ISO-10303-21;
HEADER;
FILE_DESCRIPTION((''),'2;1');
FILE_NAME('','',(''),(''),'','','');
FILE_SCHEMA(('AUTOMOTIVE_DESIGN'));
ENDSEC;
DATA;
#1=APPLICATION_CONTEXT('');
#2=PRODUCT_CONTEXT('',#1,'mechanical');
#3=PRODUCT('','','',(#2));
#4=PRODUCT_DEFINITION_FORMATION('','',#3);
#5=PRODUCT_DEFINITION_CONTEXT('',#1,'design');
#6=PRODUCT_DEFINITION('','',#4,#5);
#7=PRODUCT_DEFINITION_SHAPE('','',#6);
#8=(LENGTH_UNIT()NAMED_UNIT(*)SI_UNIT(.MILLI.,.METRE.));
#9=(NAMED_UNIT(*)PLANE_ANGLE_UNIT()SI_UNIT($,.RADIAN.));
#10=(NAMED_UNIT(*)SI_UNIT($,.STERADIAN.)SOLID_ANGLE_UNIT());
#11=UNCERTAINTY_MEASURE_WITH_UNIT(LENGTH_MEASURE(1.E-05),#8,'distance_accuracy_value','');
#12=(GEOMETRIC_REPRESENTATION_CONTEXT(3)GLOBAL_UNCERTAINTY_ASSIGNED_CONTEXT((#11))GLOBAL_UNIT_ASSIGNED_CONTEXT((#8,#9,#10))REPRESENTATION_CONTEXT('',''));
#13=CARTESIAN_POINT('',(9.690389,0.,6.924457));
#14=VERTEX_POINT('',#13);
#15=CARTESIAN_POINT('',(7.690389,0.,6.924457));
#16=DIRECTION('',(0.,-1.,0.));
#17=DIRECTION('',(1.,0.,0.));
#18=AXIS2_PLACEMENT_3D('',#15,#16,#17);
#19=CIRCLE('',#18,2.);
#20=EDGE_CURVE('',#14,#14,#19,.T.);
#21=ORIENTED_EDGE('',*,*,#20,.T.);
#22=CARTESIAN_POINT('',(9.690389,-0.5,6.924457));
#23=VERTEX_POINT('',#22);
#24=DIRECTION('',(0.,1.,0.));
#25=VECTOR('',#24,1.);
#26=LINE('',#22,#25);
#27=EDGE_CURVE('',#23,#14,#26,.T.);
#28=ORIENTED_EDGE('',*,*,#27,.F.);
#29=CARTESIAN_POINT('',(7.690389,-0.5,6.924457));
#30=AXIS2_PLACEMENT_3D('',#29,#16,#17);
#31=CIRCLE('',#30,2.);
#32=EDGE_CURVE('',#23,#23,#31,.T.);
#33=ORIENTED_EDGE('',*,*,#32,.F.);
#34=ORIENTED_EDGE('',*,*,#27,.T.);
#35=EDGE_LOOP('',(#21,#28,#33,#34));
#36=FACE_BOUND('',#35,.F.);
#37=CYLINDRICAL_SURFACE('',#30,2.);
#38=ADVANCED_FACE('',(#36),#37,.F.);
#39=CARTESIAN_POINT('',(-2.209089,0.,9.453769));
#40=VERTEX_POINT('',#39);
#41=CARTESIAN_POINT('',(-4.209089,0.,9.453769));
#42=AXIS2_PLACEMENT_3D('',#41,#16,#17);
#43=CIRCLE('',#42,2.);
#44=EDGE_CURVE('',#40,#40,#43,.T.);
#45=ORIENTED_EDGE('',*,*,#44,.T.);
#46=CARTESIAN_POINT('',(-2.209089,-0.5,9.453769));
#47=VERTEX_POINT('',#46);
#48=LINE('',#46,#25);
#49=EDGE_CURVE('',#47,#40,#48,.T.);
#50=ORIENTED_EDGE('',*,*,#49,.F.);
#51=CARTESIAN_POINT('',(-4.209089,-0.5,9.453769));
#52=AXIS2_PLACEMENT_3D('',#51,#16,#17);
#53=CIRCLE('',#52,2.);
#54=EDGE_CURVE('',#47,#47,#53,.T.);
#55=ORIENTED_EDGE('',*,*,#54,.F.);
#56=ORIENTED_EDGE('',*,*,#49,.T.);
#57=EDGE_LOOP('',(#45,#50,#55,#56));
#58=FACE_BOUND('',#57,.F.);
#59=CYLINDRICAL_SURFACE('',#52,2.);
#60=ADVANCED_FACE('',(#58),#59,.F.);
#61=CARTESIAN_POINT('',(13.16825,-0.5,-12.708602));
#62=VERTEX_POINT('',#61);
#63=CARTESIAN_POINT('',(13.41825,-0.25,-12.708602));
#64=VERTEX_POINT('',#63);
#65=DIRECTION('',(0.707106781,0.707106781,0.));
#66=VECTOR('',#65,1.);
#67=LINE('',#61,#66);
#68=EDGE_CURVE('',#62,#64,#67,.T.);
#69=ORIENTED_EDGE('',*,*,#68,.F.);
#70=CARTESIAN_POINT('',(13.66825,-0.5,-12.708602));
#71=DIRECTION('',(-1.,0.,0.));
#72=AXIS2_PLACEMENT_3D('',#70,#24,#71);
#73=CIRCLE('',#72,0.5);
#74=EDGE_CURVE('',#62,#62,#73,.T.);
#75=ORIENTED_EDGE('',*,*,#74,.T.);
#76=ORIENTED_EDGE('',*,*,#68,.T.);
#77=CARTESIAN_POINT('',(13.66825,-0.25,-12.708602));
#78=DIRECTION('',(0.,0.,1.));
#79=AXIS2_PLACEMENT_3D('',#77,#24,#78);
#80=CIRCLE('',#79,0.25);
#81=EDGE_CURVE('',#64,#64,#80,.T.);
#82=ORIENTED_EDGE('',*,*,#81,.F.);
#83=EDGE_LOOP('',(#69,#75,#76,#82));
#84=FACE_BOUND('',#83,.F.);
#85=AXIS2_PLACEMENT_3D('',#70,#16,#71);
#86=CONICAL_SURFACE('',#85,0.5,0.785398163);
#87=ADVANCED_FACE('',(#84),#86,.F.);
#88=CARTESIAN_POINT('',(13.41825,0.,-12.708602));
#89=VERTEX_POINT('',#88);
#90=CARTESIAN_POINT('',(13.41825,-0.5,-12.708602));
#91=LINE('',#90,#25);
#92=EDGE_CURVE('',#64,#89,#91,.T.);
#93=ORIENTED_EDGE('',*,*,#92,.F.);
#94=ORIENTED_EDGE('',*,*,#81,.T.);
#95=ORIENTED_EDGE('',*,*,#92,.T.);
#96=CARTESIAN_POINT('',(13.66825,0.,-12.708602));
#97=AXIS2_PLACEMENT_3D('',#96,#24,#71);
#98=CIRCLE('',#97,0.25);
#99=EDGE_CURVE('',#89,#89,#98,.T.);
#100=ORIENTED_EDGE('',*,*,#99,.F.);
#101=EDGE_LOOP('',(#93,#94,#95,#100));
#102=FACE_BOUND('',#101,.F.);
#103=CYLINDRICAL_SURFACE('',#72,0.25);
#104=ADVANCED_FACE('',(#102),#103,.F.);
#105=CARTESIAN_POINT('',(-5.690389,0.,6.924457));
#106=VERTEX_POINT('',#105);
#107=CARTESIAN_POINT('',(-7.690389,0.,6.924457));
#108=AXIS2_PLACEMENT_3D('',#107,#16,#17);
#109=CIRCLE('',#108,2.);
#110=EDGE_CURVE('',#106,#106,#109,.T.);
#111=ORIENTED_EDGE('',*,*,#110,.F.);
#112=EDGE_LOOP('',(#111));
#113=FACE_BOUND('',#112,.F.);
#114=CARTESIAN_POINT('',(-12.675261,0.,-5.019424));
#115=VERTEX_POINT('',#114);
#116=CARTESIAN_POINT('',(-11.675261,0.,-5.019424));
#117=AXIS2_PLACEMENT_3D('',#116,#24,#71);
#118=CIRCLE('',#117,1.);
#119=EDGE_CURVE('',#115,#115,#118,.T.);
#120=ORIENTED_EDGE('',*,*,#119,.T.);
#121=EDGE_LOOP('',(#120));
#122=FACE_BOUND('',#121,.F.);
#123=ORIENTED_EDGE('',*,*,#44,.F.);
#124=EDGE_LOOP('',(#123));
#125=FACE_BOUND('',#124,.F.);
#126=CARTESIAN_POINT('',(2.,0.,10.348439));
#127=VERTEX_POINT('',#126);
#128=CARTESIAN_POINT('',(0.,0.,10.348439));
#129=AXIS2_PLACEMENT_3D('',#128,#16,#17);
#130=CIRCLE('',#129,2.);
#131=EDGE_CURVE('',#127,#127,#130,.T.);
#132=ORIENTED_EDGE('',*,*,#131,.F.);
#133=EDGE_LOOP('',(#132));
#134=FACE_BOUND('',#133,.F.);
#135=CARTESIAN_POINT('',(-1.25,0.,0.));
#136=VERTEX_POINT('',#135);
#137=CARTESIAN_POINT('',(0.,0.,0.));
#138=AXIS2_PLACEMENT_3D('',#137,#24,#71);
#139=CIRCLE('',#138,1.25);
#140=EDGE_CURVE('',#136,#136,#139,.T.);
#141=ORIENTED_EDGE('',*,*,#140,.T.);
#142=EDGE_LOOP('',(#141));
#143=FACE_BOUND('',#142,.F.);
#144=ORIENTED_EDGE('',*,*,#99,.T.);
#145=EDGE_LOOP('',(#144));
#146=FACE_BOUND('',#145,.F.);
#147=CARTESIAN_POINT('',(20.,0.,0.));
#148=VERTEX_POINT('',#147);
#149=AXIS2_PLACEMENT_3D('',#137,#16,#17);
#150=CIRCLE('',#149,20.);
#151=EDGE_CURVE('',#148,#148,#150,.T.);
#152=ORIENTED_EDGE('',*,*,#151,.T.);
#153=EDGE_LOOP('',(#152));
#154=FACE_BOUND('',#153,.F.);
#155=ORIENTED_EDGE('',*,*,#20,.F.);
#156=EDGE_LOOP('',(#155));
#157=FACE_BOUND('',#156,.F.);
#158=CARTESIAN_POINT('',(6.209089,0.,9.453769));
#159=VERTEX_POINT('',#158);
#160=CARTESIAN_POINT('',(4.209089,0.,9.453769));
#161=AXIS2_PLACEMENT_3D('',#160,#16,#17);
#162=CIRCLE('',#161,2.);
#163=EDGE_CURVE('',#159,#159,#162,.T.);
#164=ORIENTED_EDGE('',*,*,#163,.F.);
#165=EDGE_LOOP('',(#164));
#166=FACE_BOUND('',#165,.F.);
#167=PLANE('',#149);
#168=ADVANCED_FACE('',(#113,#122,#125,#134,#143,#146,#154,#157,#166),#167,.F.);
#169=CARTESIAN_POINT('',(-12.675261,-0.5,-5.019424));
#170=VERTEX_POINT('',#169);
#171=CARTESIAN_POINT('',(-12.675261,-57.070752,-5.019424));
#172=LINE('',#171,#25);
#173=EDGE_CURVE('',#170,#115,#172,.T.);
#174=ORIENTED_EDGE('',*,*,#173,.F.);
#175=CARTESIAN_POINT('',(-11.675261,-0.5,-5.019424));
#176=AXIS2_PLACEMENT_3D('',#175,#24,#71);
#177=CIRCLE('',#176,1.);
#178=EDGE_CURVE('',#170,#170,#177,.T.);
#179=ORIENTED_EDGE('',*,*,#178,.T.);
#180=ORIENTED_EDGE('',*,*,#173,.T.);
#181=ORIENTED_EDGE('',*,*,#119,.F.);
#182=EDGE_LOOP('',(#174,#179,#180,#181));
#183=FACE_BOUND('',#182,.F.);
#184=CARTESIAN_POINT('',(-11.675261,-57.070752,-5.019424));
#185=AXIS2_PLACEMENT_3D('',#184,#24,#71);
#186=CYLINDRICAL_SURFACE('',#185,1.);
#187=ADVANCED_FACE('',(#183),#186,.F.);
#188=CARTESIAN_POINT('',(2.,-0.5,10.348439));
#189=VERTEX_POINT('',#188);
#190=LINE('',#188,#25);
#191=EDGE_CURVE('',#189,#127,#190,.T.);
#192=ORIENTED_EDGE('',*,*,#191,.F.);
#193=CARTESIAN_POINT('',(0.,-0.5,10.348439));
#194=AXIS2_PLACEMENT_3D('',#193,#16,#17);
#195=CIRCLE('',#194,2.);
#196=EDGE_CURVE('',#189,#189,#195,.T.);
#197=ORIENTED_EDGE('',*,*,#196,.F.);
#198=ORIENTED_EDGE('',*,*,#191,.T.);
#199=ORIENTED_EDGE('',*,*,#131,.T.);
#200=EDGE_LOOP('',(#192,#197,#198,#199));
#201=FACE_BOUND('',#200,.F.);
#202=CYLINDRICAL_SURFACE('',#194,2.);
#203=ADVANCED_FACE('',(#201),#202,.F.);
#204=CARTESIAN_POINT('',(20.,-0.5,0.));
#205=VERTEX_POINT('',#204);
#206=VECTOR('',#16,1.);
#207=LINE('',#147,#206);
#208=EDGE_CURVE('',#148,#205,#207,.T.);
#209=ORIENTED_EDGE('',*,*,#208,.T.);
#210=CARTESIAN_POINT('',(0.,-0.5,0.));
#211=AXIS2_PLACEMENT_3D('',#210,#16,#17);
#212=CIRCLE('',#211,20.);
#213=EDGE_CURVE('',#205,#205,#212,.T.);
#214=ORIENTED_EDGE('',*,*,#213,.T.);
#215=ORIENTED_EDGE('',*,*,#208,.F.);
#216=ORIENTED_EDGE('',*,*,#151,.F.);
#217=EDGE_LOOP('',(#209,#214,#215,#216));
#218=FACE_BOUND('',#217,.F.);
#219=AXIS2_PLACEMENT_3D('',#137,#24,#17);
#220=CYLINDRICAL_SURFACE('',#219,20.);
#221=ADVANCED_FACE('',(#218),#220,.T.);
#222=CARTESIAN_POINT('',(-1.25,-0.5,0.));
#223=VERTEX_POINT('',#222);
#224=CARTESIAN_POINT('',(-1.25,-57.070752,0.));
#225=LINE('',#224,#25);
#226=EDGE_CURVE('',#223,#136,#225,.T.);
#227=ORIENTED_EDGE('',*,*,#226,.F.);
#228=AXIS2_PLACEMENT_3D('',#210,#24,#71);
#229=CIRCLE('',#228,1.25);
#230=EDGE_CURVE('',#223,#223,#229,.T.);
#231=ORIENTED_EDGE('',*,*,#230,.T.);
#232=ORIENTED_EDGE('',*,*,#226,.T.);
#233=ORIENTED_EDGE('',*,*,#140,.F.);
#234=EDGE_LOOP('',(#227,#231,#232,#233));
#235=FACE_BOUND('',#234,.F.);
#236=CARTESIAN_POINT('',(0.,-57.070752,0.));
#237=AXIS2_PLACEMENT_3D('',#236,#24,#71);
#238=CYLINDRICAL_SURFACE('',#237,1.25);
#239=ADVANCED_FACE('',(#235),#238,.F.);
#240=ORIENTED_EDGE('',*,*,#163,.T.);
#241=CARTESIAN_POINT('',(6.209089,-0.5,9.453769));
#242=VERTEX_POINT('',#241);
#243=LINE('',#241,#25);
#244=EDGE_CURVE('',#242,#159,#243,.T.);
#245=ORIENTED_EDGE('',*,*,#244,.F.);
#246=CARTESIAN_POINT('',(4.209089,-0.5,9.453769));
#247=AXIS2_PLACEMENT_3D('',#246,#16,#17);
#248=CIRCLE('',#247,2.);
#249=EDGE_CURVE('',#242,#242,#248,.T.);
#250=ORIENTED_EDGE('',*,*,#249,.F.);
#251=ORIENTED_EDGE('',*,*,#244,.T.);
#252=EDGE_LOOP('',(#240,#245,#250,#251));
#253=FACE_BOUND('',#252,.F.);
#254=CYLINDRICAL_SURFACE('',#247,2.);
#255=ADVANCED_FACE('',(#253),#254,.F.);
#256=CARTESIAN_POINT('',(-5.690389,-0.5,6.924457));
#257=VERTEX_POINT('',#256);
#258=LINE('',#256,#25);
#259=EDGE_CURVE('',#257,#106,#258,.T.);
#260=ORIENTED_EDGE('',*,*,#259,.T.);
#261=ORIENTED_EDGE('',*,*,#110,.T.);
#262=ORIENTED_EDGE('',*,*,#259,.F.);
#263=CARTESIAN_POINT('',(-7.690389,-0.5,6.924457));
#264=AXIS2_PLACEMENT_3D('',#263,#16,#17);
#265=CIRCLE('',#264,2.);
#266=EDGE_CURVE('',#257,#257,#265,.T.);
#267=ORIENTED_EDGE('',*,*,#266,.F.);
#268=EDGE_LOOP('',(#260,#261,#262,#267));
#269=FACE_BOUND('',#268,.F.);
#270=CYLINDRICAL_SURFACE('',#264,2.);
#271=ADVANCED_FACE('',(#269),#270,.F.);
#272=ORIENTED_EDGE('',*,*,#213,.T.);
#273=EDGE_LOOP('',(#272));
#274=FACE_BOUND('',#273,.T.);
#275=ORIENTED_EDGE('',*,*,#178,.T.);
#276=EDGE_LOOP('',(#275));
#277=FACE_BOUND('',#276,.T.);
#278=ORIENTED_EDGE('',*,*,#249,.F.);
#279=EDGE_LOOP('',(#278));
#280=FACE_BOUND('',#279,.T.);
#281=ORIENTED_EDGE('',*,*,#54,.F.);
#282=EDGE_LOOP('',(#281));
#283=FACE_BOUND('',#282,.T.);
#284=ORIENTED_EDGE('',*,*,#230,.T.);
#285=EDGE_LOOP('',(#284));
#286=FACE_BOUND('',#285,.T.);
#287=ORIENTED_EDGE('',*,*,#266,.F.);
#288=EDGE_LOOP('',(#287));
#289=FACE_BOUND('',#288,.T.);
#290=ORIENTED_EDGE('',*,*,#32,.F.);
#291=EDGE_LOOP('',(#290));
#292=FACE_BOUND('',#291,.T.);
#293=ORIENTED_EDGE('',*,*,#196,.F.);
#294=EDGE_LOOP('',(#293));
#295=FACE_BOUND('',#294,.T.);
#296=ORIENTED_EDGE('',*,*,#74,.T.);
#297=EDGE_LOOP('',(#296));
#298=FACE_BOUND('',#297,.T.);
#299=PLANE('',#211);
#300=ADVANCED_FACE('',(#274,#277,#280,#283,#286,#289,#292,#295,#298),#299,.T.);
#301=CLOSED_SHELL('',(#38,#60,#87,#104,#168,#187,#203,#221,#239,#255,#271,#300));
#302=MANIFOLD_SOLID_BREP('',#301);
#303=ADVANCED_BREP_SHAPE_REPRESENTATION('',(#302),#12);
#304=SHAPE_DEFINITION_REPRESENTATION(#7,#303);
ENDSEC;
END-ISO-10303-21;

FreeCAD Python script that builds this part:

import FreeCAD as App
import Part
import Sketcher
Q = App.Units.Quantity

doc = App.newDocument("Part")
body = doc.addObject("PartDesign::Body", "Body")

# Sketch on XZ plane
sketch1 = body.newObject("Sketcher::SketchObject", "Sketch")
sketch1.AttachmentSupport = (doc.getObject("XZ_Plane"), [""])
sketch1.MapMode = "FlatFace"
sketch1.addGeometry(Part.Circle(App.Vector(0, 0, 0), App.Vector(0, 0, 1), 20), False)
sketch1.addConstraint([
    Sketcher.Constraint("Coincident", 0, 3, -1, 1),
    Sketcher.Constraint("Diameter", 0, Q("40 mm")),
])
pad1 = body.newObject("PartDesign::Pad", "Pad")
pad1.Profile = sketch1
pad1.Length = 0.5

# Sketch on XZ plane
sketch2 = body.newObject("Sketcher::SketchObject", "Sketch001")
sketch2.AttachmentSupport = (doc.getObject("XZ_Plane"), [""])
sketch2.MapMode = "FlatFace"
sketch2.AttachmentOffset = App.Placement(App.Vector(0, 0, 0.5), App.Rotation())
sketch2.addGeometry(Part.Circle(App.Vector(0, 0, 0), App.Vector(0, 0, 1), 1.2), False)
sketch2.addConstraint([
    Sketcher.Constraint("Coincident", 0, 3, -1, 1),
    Sketcher.Constraint("Diameter", 0, Q("2.5 mm")),
])
doc.recompute()
hole = body.newObject("PartDesign::Hole", "Hole")
hole.Profile = sketch2
hole.ThreadType = "None"
hole.Diameter = 2.5
hole.DepthType = "ThroughAll"

# Sketch on XZ plane
sketch3 = body.newObject("Sketcher::SketchObject", "Sketch002")
sketch3.AttachmentSupport = (doc.getObject("XZ_Plane"), [""])
sketch3.MapMode = "FlatFace"
sketch3.AttachmentOffset = App.Placement(App.Vector(0, 0, 0.5), App.Rotation())
sketch3.addGeometry([
    Part.Circle(App.Vector(-7.7, 6.9, 0), App.Vector(0, 0, 1), 2),  # 0
    Part.Circle(App.Vector(-4.2, 9.5, 0), App.Vector(0, 0, 1), 2),  # 1
    Part.Circle(App.Vector(0, 10.3, 0), App.Vector(0, 0, 1), 2),  # 2
    Part.Circle(App.Vector(4.2, 9.5, 0), App.Vector(0, 0, 1), 2),  # 3
    Part.Circle(App.Vector(7.7, 6.9, 0), App.Vector(0, 0, 1), 2),  # 4
], False)
sketch3.addConstraint([
    Sketcher.Constraint("Equal", 0, 1),
    Sketcher.Constraint("Equal", 1, 2),
    Sketcher.Constraint("Equal", 2, 3),
    Sketcher.Constraint("Equal", 3, 4),
    Sketcher.Constraint("Symmetric", 1, 3, 3, 3, -2),
    Sketcher.Constraint("Symmetric", 0, 3, 4, 3, -2),
    Sketcher.Constraint("PointOnObject", 2, 3, -2),
    Sketcher.Constraint("Diameter", 0, Q("4 mm")),
    Sketcher.Constraint("DistanceX", 0, 3, 1, 3, Q("3.4813 mm")),
    Sketcher.Constraint("DistanceX", 0, 3, -1, 1, Q("7.690389 mm")),
    Sketcher.Constraint("DistanceY", -1, 1, 1, 3, Q("9.453769 mm")),
    Sketcher.Constraint("DistanceY", -1, 1, 2, 3, Q("10.348439 mm")),
    Sketcher.Constraint("DistanceY", 0, 3, 1, 3, Q("2.529312 mm")),
])
pocket1 = body.newObject("PartDesign::Pocket", "Pocket")
pocket1.Profile = sketch3
pocket1.Length = 25.4

# Sketch on XZ plane
sketch4 = body.newObject("Sketcher::SketchObject", "Sketch003")
sketch4.AttachmentSupport = (doc.getObject("XZ_Plane"), [""])
sketch4.MapMode = "FlatFace"
sketch4.AttachmentOffset = App.Placement(App.Vector(0, 0, 0.5), App.Rotation())
sketch4.addGeometry(Part.Circle(App.Vector(13.67, -12.71, 0), App.Vector(0, 0, 1), 0.25), False)
sketch4.addConstraint([
    Sketcher.Constraint("Diameter", 0, Q("0.5 mm")),
    Sketcher.Constraint("DistanceX", -1, 1, 0, 3, Q("13.66825 mm")),
    Sketcher.Constraint("DistanceY", 0, 3, -1, 1, Q("12.708602 mm")),
])
doc.recompute()
hole2 = body.newObject("PartDesign::Hole", "Hole001")
hole2.Profile = sketch4
hole2.ThreadType = "None"
hole2.Diameter = 0.5
hole2.DepthType = "ThroughAll"
hole2.HoleCutType = "Countersink"
hole2.HoleCutDiameter = 1
hole2.HoleCutCountersinkAngle = 90

# Sketch on XZ plane
sketch5 = body.newObject("Sketcher::SketchObject", "Sketch004")
sketch5.AttachmentSupport = (doc.getObject("XZ_Plane"), [""])
sketch5.MapMode = "FlatFace"
sketch5.AttachmentOffset = App.Placement(App.Vector(0, 0, 0.5), App.Rotation())
sketch5.addGeometry(Part.Circle(App.Vector(-11.7, -5, 0), App.Vector(0, 0, 1), 1), False)
sketch5.addConstraint([
    Sketcher.Constraint("Diameter", 0, Q("2 mm")),
    Sketcher.Constraint("DistanceX", 0, 3, -1, 1, Q("11.675261 mm")),
    Sketcher.Constraint("DistanceY", 0, 3, -1, 1, Q("5.019424 mm")),
])
doc.recompute()
hole3 = body.newObject("PartDesign::Hole", "Hole002")
hole3.Profile = sketch5
hole3.ThreadType = "None"
hole3.Diameter = 2
hole3.DepthType = "ThroughAll"

doc.recompute()
